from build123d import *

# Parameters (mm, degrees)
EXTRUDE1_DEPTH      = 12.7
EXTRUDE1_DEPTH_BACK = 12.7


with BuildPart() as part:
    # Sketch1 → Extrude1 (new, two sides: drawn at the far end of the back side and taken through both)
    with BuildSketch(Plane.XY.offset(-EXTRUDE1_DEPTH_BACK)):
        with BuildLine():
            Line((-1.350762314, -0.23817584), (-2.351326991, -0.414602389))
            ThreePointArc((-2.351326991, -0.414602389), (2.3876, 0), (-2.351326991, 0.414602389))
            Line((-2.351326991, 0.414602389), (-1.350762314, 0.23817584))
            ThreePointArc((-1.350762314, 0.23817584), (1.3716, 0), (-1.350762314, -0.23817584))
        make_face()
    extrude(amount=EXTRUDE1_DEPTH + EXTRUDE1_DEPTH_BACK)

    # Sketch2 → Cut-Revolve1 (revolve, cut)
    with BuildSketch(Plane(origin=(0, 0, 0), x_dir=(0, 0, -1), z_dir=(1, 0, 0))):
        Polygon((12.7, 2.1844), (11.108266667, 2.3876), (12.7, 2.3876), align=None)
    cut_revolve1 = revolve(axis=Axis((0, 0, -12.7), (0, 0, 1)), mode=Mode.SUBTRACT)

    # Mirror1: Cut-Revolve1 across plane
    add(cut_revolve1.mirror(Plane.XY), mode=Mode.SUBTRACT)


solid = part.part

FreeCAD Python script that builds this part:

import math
import FreeCAD as App
import Part
import Sketcher
Q = App.Units.Quantity


def add_polygon(sketch, points):
    """Adds a closed chain of lines whose ends are joined by coincident constraints."""
    first, n = sketch.GeometryCount, len(points)
    for a, b in zip(points, points[1:] + points[:1]):
        sketch.addGeometry(Part.LineSegment(App.Vector(*a, 0), App.Vector(*b, 0)), False)
    for i in range(n):
        sketch.addConstraint(Sketcher.Constraint("Coincident", first + i, 2, first + (i + 1) % n, 1))

doc = App.newDocument("Part")
body = doc.addObject("PartDesign::Body", "Body")

# Sketch on XY plane
sketch1 = body.newObject("Sketcher::SketchObject", "Sketch")
sketch1.AttachmentSupport = (doc.getObject("XY_Plane"), [""])
sketch1.MapMode = "FlatFace"
sketch1.addGeometry(Part.LineSegment(App.Vector(-1.35, -0.24, 0), App.Vector(-2.35, -0.41, 0)), False)
sketch1.addGeometry(Part.ArcOfCircle(Part.Circle(App.Vector(0, 0, 0), App.Vector(0, 0, 1), 2.39), math.radians(-170), math.radians(170)), False)
sketch1.addGeometry(Part.LineSegment(App.Vector(-2.35, 0.41, 0), App.Vector(-1.35, 0.24, 0)), False)
sketch1.addGeometry(Part.ArcOfCircle(Part.Circle(App.Vector(0, 0, 0), App.Vector(0, 0, 1), 1.37), math.radians(-170), math.radians(170)), False)
sketch1.addConstraint(Sketcher.Constraint("Coincident", 0, 2, 1, 1))
sketch1.addConstraint(Sketcher.Constraint("Coincident", 1, 2, 2, 1))
sketch1.addConstraint(Sketcher.Constraint("Coincident", 2, 2, 3, 2))
sketch1.addConstraint(Sketcher.Constraint("Coincident", 3, 1, 0, 1))
sketch1.addConstraint(Sketcher.Constraint("Coincident", 1, 3, -1, 1))
sketch1.addConstraint(Sketcher.Constraint("Coincident", 3, 3, -1, 1))
sketch1.addConstraint(Sketcher.Constraint("Vertical", 0, 2, 1, 2))
sketch1.addConstraint(Sketcher.Constraint("Vertical", 2, 2, 3, 1))
sketch1.addConstraint(Sketcher.Constraint("Angle", 0, Q("-170 deg")))
sketch1.addConstraint(Sketcher.Constraint("Radius", 1, Q("0.094 in")))
sketch1.addConstraint(Sketcher.Constraint("Radius", 3, Q("0.054 in")))
sketch1.addConstraint(Sketcher.Constraint("DistanceY", 0, 2, 2, 2, Q("0.0256999 in")))
pad1 = body.newObject("PartDesign::Pad", "Pad")
pad1.Profile = sketch1
pad1.Type = "TwoLengths"
pad1.Length = Q("0.5 in")
pad1.Length2 = Q("0.5 in")

# Sketch on YZ plane
sketch2 = body.newObject("Sketcher::SketchObject", "Sketch001")
sketch2.AttachmentSupport = (doc.getObject("YZ_Plane"), [""])
sketch2.MapMode = "FlatFace"
add_polygon(sketch2, [(2.39, -11.11), (2.18, -12.7), (2.39, -12.7)])  # lines 0-2
sketch2.addConstraint(Sketcher.Constraint("Horizontal", 1))
sketch2.addConstraint(Sketcher.Constraint("Vertical", 2))
sketch2.addConstraint(Sketcher.Constraint("DistanceY", 0, 2, -1, 1, Q("0.5 in")))
sketch2.addConstraint(Sketcher.Constraint("DistanceX", 1, 1, 1, 2, Q("0.008 in")))
sketch2.addConstraint(Sketcher.Constraint("DistanceX", -1, 1, 0, 2, Q("0.086 in")))
sketch2.addConstraint(Sketcher.Constraint("Distance", 0, Q("1.604651 mm")))
groove = body.newObject("PartDesign::Groove", "Groove")
groove.Profile = sketch2
groove.ReferenceAxis = (sketch2, ["V_Axis"])
groove.Angle = 360
doc.recompute()

mirrored = body.newObject("PartDesign::Mirrored", "Mirrored")
mirrored.Originals = [groove]
mirrored.MirrorPlane = (doc.getObject("XY_Plane"), [""])
body.Tip = mirrored

doc.recompute()
